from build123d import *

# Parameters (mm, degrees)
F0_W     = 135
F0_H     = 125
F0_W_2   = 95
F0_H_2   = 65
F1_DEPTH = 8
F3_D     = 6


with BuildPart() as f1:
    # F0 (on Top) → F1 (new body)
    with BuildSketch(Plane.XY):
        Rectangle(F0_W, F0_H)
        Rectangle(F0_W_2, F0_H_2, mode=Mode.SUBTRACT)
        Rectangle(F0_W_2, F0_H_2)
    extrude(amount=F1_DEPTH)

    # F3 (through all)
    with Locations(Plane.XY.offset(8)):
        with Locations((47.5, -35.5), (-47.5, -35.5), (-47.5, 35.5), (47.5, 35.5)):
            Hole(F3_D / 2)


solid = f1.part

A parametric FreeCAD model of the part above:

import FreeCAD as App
import Part
import Sketcher


def add_polygon(sketch, points):
    """Adds a closed chain of lines whose ends are joined by coincident constraints."""
    first, n = sketch.GeometryCount, len(points)
    for a, b in zip(points, points[1:] + points[:1]):
        sketch.addGeometry(Part.LineSegment(App.Vector(*a, 0), App.Vector(*b, 0)), False)
    for i in range(n):
        sketch.addConstraint(Sketcher.Constraint("Coincident", first + i, 2, first + (i + 1) % n, 1))

doc = App.newDocument("Part")
params = doc.addObject("Spreadsheet::Sheet", "Params")
for row, (alias, value) in enumerate([
    ("sketch1_width", "135 mm"),
    ("sketch1_height", "125 mm"),
    ("pad1_length", "8 mm"),
    ("sketch2_diameter", "6 mm"),
    ("hole_diameter", "6 mm"),
], start=1):
    params.set(f"A{row}", alias)
    params.set(f"B{row}", "=" + value)
    params.setAlias(f"B{row}", alias)

body = doc.addObject("PartDesign::Body", "Body")

# Sketch on XY plane
sketch1 = doc.addObject("Sketcher::SketchObject", "Sketch")
body.addObject(sketch1)
sketch1.AttachmentSupport = (doc.XY_Plane, [""])
sketch1.MapMode = "FlatFace"
add_polygon(sketch1, [(-68, 62), (-68, -62), (68, -62), (68, 62)])  # lines 0-3
sketch1.addConstraint([
    Sketcher.Constraint("Vertical", 0),
    Sketcher.Constraint("Horizontal", 1),
    Sketcher.Constraint("Vertical", 2),
    Sketcher.Constraint("Horizontal", 3),
    Sketcher.Constraint("Symmetric", 0, 2, 2, 2, -1, 1),
    Sketcher.Constraint("DistanceX", 1, 1, 1, 2, 135.0),
    Sketcher.Constraint("DistanceY", 0, 2, 0, 1, 125.0),
])
sketch1.setExpression("Constraints[9]", "Params.sketch1_width")
sketch1.setExpression("Constraints[10]", "Params.sketch1_height")
pad1 = doc.addObject("PartDesign::Pad", "Pad")
body.addObject(pad1)
pad1.Profile = sketch1
pad1.setExpression("Length", "Params.pad1_length")

# Sketch on XY plane
sketch2 = doc.addObject("Sketcher::SketchObject", "Sketch001")
body.addObject(sketch2)
sketch2.AttachmentSupport = (doc.XY_Plane, [""])
sketch2.MapMode = "FlatFace"
sketch2.AttachmentOffset = App.Placement(App.Vector(0, 0, 8), App.Rotation())
sketch2.addGeometry([
    Part.Circle(App.Vector(47.5, -35.5, 0), App.Vector(0, 0, 1), 3),
    Part.Circle(App.Vector(-47.5, -35.5, 0), App.Vector(0, 0, 1), 3),
    Part.Circle(App.Vector(-47.5, 35.5, 0), App.Vector(0, 0, 1), 3),
    Part.Circle(App.Vector(47.5, 35.5, 0), App.Vector(0, 0, 1), 3),
], False)
sketch2.addConstraint([
    Sketcher.Constraint("Equal", 0, 1),
    Sketcher.Constraint("Equal", 1, 2),
    Sketcher.Constraint("Equal", 2, 3),
    Sketcher.Constraint("Symmetric", 0, 3, 2, 3, -1, 1),
    Sketcher.Constraint("Symmetric", 1, 3, 3, 3, -1, 1),
    Sketcher.Constraint("Symmetric", 0, 3, 1, 3, -2),
    Sketcher.Constraint("Diameter", 0, 6.0),
    Sketcher.Constraint("DistanceX", 1, 3, 0, 3, 95.0),
    Sketcher.Constraint("DistanceY", 1, 3, 2, 3, 71.0),
])
sketch2.setExpression("Constraints[6]", "Params.sketch2_diameter")
doc.recompute()
hole = doc.addObject("PartDesign::Hole", "Hole")
body.addObject(hole)
hole.Profile = sketch2
hole.ThreadType = "None"
hole.setExpression("Diameter", "Params.hole_diameter")
hole.DepthType = "ThroughAll"

doc.recompute()
